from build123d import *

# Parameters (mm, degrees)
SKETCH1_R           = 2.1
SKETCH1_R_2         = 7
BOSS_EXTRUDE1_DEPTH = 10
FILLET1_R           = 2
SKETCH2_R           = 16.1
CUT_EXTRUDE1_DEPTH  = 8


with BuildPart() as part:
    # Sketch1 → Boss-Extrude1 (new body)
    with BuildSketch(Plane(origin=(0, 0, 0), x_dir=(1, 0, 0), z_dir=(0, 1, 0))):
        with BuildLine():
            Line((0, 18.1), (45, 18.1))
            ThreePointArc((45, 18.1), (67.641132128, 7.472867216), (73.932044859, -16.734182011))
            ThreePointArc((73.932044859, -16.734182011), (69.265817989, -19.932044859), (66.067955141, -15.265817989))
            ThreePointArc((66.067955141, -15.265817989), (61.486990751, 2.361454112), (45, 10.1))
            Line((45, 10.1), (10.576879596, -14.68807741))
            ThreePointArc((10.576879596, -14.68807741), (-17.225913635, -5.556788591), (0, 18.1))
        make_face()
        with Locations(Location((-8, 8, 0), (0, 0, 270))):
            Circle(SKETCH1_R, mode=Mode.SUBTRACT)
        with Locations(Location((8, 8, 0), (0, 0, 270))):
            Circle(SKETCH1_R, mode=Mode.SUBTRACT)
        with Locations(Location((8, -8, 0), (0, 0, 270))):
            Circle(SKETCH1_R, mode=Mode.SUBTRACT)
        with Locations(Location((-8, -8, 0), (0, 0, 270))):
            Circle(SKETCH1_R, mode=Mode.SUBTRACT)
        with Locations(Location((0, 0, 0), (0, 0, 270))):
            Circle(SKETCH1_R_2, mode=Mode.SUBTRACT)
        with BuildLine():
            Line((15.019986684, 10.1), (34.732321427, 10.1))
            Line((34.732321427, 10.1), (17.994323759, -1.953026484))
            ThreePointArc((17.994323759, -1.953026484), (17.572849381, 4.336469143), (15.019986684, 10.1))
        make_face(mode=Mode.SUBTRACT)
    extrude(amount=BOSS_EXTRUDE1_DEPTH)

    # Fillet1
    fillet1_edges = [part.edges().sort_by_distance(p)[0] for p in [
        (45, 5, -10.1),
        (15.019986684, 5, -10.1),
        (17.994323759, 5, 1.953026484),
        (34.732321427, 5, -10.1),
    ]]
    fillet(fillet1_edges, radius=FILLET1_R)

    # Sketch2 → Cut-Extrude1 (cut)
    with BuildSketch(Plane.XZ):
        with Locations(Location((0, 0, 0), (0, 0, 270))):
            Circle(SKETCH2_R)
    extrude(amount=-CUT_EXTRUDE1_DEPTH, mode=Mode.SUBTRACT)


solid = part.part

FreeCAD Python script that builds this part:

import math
import FreeCAD as App
import Part
import Sketcher
Q = App.Units.Quantity


def edges_at(feature, points):
    """Names of the edges that pass closest to the given points."""
    edges = feature.Shape.Edges
    near = lambda p: min(range(len(edges)), key=lambda i: edges[i].distToShape(Part.Vertex(*p))[0])
    return sorted({f"Edge{near(p) + 1}" for p in points})

doc = App.newDocument("Part")
body = doc.addObject("PartDesign::Body", "Body")

# Sketch on XZ plane
sketch1 = doc.addObject("Sketcher::SketchObject", "Sketch")
body.addObject(sketch1)
sketch1.AttachmentSupport = (doc.XZ_Plane, [""])
sketch1.MapMode = "FlatFace"
sketch1.addGeometry([
    Part.LineSegment(App.Vector(45, -18.1, 0), App.Vector(0, -18.1, 0)),  # 0
    Part.ArcOfCircle(Part.Circle(App.Vector(0, 0, 0), App.Vector(0, 0, 1), 18.1), math.radians(54), math.radians(270)),  # 1
    Part.LineSegment(App.Vector(10.6, 14.7, 0), App.Vector(45, -10.1, 0)),  # 2
    Part.ArcOfCircle(Part.Circle(App.Vector(45, 11.3, 0), App.Vector(0, 0, 1), 21.4), math.radians(-90), math.radians(11)),  # 3
    Part.ArcOfCircle(Part.Circle(App.Vector(70, 16, 0), App.Vector(0, 0, 1), 4), math.radians(11), math.radians(191)),  # 4
    Part.ArcOfCircle(Part.Circle(App.Vector(45, 11.3, 0), App.Vector(0, 0, 1), 29.4), math.radians(-90), math.radians(11)),  # 5
    Part.Circle(App.Vector(8, 8, 0), App.Vector(0, 0, 1), 2.1),  # 6
    Part.Circle(App.Vector(-8, 8, 0), App.Vector(0, 0, 1), 2.1),  # 7
    Part.Circle(App.Vector(0, 0, 0), App.Vector(0, 0, 1), 7),  # 8
    Part.LineSegment(App.Vector(15, -10.1, 0), App.Vector(34.7, -10.1, 0)),  # 9
    Part.LineSegment(App.Vector(34.7, -10.1, 0), App.Vector(18, 2, 0)),  # 10
    Part.ArcOfCircle(Part.Circle(App.Vector(0, 0, 0), App.Vector(0, 0, 1), 18.1), math.radians(-34), math.radians(6)),  # 11
    Part.Circle(App.Vector(8, -8, 0), App.Vector(0, 0, 1), 2.1),  # 12
    Part.Circle(App.Vector(-8, -8, 0), App.Vector(0, 0, 1), 2.1),  # 13
], False)
sketch1.addConstraint([
    Sketcher.Constraint("Tangent", 0, 2, 1, 2),
    Sketcher.Constraint("Tangent", 1, 1, 2, 1),
    Sketcher.Constraint("Coincident", 2, 2, 3, 1),
    Sketcher.Constraint("Tangent", 3, 2, 4, 2),
    Sketcher.Constraint("Tangent", 4, 1, 5, 2),
    Sketcher.Constraint("Tangent", 5, 1, 0, 1),
    Sketcher.Constraint("Coincident", 9, 2, 10, 1),
    Sketcher.Constraint("Coincident", 10, 2, 11, 2),
    Sketcher.Constraint("Coincident", 11, 1, 9, 1),
    Sketcher.Constraint("Horizontal", 0),
    Sketcher.Constraint("Horizontal", 9),
    Sketcher.Constraint("Coincident", 1, 3, -1, 1),
    Sketcher.Constraint("Coincident", 8, 3, -1, 1),
    Sketcher.Constraint("Coincident", 11, 3, -1, 1),
    Sketcher.Constraint("Coincident", 5, 3, 3, 3),
    Sketcher.Constraint("Equal", 6, 7),
    Sketcher.Constraint("Equal", 1, 11),
    Sketcher.Constraint("Equal", 7, 12),
    Sketcher.Constraint("Equal", 12, 13),
    Sketcher.Constraint("Symmetric", 7, 3, 12, 3, -1, 1),
    Sketcher.Constraint("Symmetric", 6, 3, 13, 3, -1, 1),
    Sketcher.Constraint("Symmetric", 6, 3, 7, 3, -2),
    Sketcher.Constraint("Parallel", 2, 10),
    Sketcher.Constraint("Horizontal", 2, 2, 9, 2),
    Sketcher.Constraint("Vertical", 5, 3, 2, 2),
    Sketcher.Constraint("Diameter", 8, Q("14 mm")),
    Sketcher.Constraint("Radius", 4, Q("4 mm")),
    Sketcher.Constraint("Diameter", 6, Q("4.2 mm")),
    Sketcher.Constraint("Radius", 1, Q("18.1 mm")),
    Sketcher.Constraint("DistanceX", 0, 2, 0, 1, Q("45 mm")),
    Sketcher.Constraint("DistanceX", -1, 1, 4, 3, Q("70 mm")),
    Sketcher.Constraint("DistanceY", -1, 1, 4, 3, Q("16 mm")),
    Sketcher.Constraint("DistanceX", -1, 1, 6, 3, Q("8 mm")),
    Sketcher.Constraint("DistanceY", -1, 1, 6, 3, Q("8 mm")),
    Sketcher.Constraint("Distance", 10, Q("20.6261 mm")),
])
pad1 = doc.addObject("PartDesign::Pad", "Pad")
body.addObject(pad1)
pad1.Profile = sketch1
pad1.Length = 10
pad1.Reversed = True
doc.recompute()

fillet = doc.addObject("PartDesign::Fillet", "Fillet")
body.addObject(fillet)
fillet.Base = (pad1, edges_at(pad1, [
    (45, 5, -10.1),
    (15.02, 5, -10.1),
    (17.994, 5, 1.953),
    (34.732, 5, -10.1),
]))
fillet.Radius = 2

# Sketch on XZ plane
sketch2 = doc.addObject("Sketcher::SketchObject", "Sketch001")
body.addObject(sketch2)
sketch2.AttachmentSupport = (doc.XZ_Plane, [""])
sketch2.MapMode = "FlatFace"
sketch2.addGeometry(Part.Circle(App.Vector(0, 0, 0), App.Vector(0, 0, 1), 16), False)
sketch2.addConstraint([
    Sketcher.Constraint("Coincident", 0, 3, -1, 1),
    Sketcher.Constraint("Diameter", 0, Q("32.2 mm")),
])
pocket1 = doc.addObject("PartDesign::Pocket", "Pocket")
body.addObject(pocket1)
pocket1.Profile = sketch2
pocket1.Length = 8

doc.recompute()
